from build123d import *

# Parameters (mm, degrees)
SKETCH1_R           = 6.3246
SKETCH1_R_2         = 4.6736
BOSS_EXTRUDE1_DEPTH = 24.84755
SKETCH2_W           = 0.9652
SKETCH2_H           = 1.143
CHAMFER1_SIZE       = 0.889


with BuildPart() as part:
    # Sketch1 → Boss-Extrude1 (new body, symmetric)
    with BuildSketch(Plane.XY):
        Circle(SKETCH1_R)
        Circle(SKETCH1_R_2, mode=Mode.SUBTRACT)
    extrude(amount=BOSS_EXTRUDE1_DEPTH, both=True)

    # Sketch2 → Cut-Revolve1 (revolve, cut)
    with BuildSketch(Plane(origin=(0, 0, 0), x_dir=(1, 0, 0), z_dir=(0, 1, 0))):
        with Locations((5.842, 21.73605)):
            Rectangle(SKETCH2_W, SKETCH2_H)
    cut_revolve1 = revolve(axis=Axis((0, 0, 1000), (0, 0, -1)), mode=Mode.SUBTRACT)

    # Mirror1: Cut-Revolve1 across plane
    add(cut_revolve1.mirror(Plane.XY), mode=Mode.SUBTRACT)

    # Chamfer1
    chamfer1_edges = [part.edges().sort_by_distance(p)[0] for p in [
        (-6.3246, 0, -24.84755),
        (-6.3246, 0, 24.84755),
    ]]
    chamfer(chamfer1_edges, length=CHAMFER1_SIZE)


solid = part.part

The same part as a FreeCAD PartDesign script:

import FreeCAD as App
import Part
import Sketcher
from FreeCAD import Vector
Q = App.Units.Quantity


def edges_at(feature, points):
    """Names of the edges that pass closest to the given points."""
    edges = feature.Shape.Edges
    near = lambda p: min(range(len(edges)), key=lambda i: edges[i].distToShape(Part.Vertex(*p))[0])
    return sorted({f"Edge{near(p) + 1}" for p in points})

doc = App.newDocument("Part")
body = doc.addObject("PartDesign::Body", "Body")

# Sketch on XY plane
sketch1 = body.newObject("Sketcher::SketchObject", "Sketch")
sketch1.AttachmentSupport = (doc.getObject("XY_Plane"), [""])
sketch1.MapMode = "FlatFace"
sketch1.addGeometry(Part.Circle(Vector(0, 0, 0), Vector(0, 0, 1), 6.3), False)
sketch1.addGeometry(Part.Circle(Vector(0, 0, 0), Vector(0, 0, 1), 4.7), False)
sketch1.addConstraint(Sketcher.Constraint("Coincident", 0, 3, -1, 1))
sketch1.addConstraint(Sketcher.Constraint("Coincident", 1, 3, -1, 1))
sketch1.addConstraint(Sketcher.Constraint("Diameter", 0, Q("0.498 in")))
sketch1.addConstraint(Sketcher.Constraint("Diameter", 1, Q("0.368 in")))
pad1 = body.newObject("PartDesign::Pad", "Pad")
pad1.Profile = sketch1
pad1.Length = Q("1.9565 in")
pad1.Midplane = True

# Sketch on XZ plane
sketch2 = body.newObject("Sketcher::SketchObject", "Sketch001")
sketch2.AttachmentSupport = (doc.getObject("XZ_Plane"), [""])
sketch2.MapMode = "FlatFace"
sketch2.addGeometry(Part.LineSegment(Vector(5.4, -22.3, 0), Vector(5.4, -21.2, 0)), False)
sketch2.addGeometry(Part.LineSegment(Vector(5.4, -21.2, 0), Vector(6.3, -21.2, 0)), False)
sketch2.addGeometry(Part.LineSegment(Vector(6.3, -21.2, 0), Vector(6.3, -22.3, 0)), False)
sketch2.addGeometry(Part.LineSegment(Vector(6.3, -22.3, 0), Vector(5.4, -22.3, 0)), False)
sketch2.addConstraint(Sketcher.Constraint("Coincident", 0, 2, 1, 1))
sketch2.addConstraint(Sketcher.Constraint("Coincident", 1, 2, 2, 1))
sketch2.addConstraint(Sketcher.Constraint("Coincident", 2, 2, 3, 1))
sketch2.addConstraint(Sketcher.Constraint("Coincident", 3, 2, 0, 1))
sketch2.addConstraint(Sketcher.Constraint("Vertical", 0))
sketch2.addConstraint(Sketcher.Constraint("Horizontal", 1))
sketch2.addConstraint(Sketcher.Constraint("Vertical", 2))
sketch2.addConstraint(Sketcher.Constraint("Horizontal", 3))
sketch2.addConstraint(Sketcher.Constraint("DistanceX", 1, 1, 1, 2, Q("0.038 in")))
sketch2.addConstraint(Sketcher.Constraint("DistanceY", 0, 1, 0, 2, Q("0.045 in")))
sketch2.addConstraint(Sketcher.Constraint("DistanceX", -1, 1, 0, 2, Q("0.211 in")))
sketch2.addConstraint(Sketcher.Constraint("DistanceY", 0, 2, -1, 1, Q("21.16455 mm")))
groove = body.newObject("PartDesign::Groove", "Groove")
groove.Profile = sketch2
groove.ReferenceAxis = (sketch2, ["V_Axis"])
groove.Angle = 360
doc.recompute()

mirrored = body.newObject("PartDesign::Mirrored", "Mirrored")
mirrored.Originals = [groove]
mirrored.MirrorPlane = (doc.getObject("XY_Plane"), [""])
body.Tip = mirrored
doc.recompute()

chamfer = body.newObject("PartDesign::Chamfer", "Chamfer")
chamfer.Base = (mirrored, edges_at(mirrored, [(-6.325, 0, -24.848), (-6.325, 0, 24.848)]))
chamfer.Size = Q("0.035 in")

doc.recompute()
